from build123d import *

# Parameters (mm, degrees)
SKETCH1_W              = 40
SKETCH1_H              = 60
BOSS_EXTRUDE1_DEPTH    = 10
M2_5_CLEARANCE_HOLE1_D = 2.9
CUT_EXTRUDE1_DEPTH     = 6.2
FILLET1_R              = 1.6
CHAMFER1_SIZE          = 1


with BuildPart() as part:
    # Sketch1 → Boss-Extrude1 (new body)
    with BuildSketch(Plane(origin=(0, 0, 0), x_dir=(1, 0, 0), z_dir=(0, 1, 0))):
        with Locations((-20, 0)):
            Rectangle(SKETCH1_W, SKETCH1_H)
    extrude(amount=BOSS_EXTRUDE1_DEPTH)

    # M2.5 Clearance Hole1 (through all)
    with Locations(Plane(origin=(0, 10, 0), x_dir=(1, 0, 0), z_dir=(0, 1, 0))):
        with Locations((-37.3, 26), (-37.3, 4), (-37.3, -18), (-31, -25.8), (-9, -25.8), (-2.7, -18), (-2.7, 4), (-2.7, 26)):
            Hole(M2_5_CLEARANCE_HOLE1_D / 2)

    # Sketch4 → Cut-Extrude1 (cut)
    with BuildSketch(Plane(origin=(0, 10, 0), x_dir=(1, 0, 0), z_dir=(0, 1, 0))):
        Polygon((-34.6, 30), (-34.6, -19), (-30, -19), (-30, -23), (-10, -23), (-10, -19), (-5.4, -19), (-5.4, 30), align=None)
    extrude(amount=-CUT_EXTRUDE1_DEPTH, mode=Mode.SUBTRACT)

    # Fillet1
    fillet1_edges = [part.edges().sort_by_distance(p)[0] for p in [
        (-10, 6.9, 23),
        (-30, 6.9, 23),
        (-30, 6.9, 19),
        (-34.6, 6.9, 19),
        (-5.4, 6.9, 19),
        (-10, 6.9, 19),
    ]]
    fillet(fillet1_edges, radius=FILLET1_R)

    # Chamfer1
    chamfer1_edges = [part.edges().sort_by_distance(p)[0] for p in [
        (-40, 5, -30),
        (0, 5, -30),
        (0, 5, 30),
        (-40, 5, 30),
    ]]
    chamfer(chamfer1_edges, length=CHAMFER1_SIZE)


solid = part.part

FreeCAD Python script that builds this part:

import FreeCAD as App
import Part
import Sketcher
from FreeCAD import Vector
Q = App.Units.Quantity


def edges_at(feature, points):
    """Names of the edges that pass closest to the given points."""
    edges = feature.Shape.Edges
    near = lambda p: min(range(len(edges)), key=lambda i: edges[i].distToShape(Part.Vertex(*p))[0])
    return sorted({f"Edge{near(p) + 1}" for p in points})


def add_polygon(sketch, points):
    """Adds a closed chain of lines whose ends are joined by coincident constraints."""
    first, n = sketch.GeometryCount, len(points)
    for a, b in zip(points, points[1:] + points[:1]):
        sketch.addGeometry(Part.LineSegment(App.Vector(*a, 0), App.Vector(*b, 0)), False)
    for i in range(n):
        sketch.addConstraint(Sketcher.Constraint("Coincident", first + i, 2, first + (i + 1) % n, 1))

doc = App.newDocument("Part")
body = doc.addObject("PartDesign::Body", "Body")

# Sketch on XZ plane
sketch1 = doc.addObject("Sketcher::SketchObject", "Sketch")
body.addObject(sketch1)
sketch1.AttachmentSupport = (doc.XZ_Plane, [""])
sketch1.MapMode = "FlatFace"
add_polygon(sketch1, [(-40, -30), (-40, 30), (0, 30), (0, -30)])  # lines 0-3
sketch1.addConstraint([
    Sketcher.Constraint("Vertical", 0),
    Sketcher.Constraint("Horizontal", 1),
    Sketcher.Constraint("Vertical", 2),
    Sketcher.Constraint("Horizontal", 3),
    Sketcher.Constraint("Symmetric", 1, 2, 2, 2, -1, 1),
    Sketcher.Constraint("DistanceX", 1, 1, 1, 2, Q("40 mm")),
    Sketcher.Constraint("DistanceY", 0, 1, 0, 2, Q("60 mm")),
])
pad1 = doc.addObject("PartDesign::Pad", "Pad")
body.addObject(pad1)
pad1.Profile = sketch1
pad1.Length = 10
pad1.Reversed = True

# Sketch on XZ plane
sketch2 = doc.addObject("Sketcher::SketchObject", "Sketch001")
body.addObject(sketch2)
sketch2.AttachmentSupport = (doc.XZ_Plane, [""])
sketch2.MapMode = "FlatFace"
sketch2.AttachmentOffset = App.Placement(Vector(0, 0, -10), App.Rotation())
sketch2.addGeometry([
    Part.Circle(Vector(-37.3, -26, 0), Vector(0, 0, 1), 1.45),  # 0
    Part.Circle(Vector(-37.3, -4, 0), Vector(0, 0, 1), 1.45),  # 1
    Part.Circle(Vector(-37.3, 18, 0), Vector(0, 0, 1), 1.45),  # 2
    Part.Circle(Vector(-31, 25.8, 0), Vector(0, 0, 1), 1.45),  # 3
    Part.Circle(Vector(-9, 25.8, 0), Vector(0, 0, 1), 1.45),  # 4
    Part.Circle(Vector(-2.7, 18, 0), Vector(0, 0, 1), 1.45),  # 5
    Part.Circle(Vector(-2.7, -4, 0), Vector(0, 0, 1), 1.45),  # 6
    Part.Circle(Vector(-2.7, -26, 0), Vector(0, 0, 1), 1.45),  # 7
], False)
sketch2.addConstraint([
    Sketcher.Constraint("Equal", 0, 1),
    Sketcher.Constraint("Equal", 1, 2),
    Sketcher.Constraint("Equal", 2, 3),
    Sketcher.Constraint("Equal", 3, 4),
    Sketcher.Constraint("Equal", 4, 5),
    Sketcher.Constraint("Equal", 5, 6),
    Sketcher.Constraint("Equal", 6, 7),
    Sketcher.Constraint("Horizontal", 3, 3, 4, 3),
    Sketcher.Constraint("Horizontal", 2, 3, 5, 3),
    Sketcher.Constraint("Horizontal", 1, 3, 6, 3),
    Sketcher.Constraint("Horizontal", 0, 3, 7, 3),
    Sketcher.Constraint("Vertical", 0, 3, 1, 3),
    Sketcher.Constraint("Vertical", 1, 3, 2, 3),
    Sketcher.Constraint("Vertical", 5, 3, 6, 3),
    Sketcher.Constraint("Vertical", 6, 3, 7, 3),
    Sketcher.Constraint("Diameter", 0, Q("2.9 mm")),
    Sketcher.Constraint("DistanceY", 0, 3, -1, 1, Q("26 mm")),
    Sketcher.Constraint("DistanceY", 1, 3, -1, 1, Q("4 mm")),
    Sketcher.Constraint("DistanceY", -1, 1, 2, 3, Q("18 mm")),
    Sketcher.Constraint("DistanceX", 3, 3, -1, 1, Q("31 mm")),
    Sketcher.Constraint("DistanceX", 4, 3, -1, 1, Q("9 mm")),
    Sketcher.Constraint("DistanceX", 0, 3, -1, 1, Q("37.3 mm")),
    Sketcher.Constraint("DistanceY", -1, 1, 3, 3, Q("25.8 mm")),
    Sketcher.Constraint("DistanceX", 5, 3, -1, 1, Q("2.7 mm")),
])
doc.recompute()
hole = doc.addObject("PartDesign::Hole", "Hole")
body.addObject(hole)
hole.Profile = sketch2
hole.ThreadType = "None"
hole.Diameter = 2.9
hole.DepthType = "ThroughAll"
hole.Reversed = True

# Sketch on XZ plane
sketch3 = doc.addObject("Sketcher::SketchObject", "Sketch002")
body.addObject(sketch3)
sketch3.AttachmentSupport = (doc.XZ_Plane, [""])
sketch3.MapMode = "FlatFace"
sketch3.AttachmentOffset = App.Placement(Vector(0, 0, -10), App.Rotation())
add_polygon(sketch3, [(-34.6, -30), (-34.6, 19), (-30, 19), (-30, 23), (-10, 23), (-10, 19), (-5.4, 19), (-5.4, -30)])  # lines 0-7
sketch3.addConstraint([
    Sketcher.Constraint("Vertical", 0),
    Sketcher.Constraint("Horizontal", 1),
    Sketcher.Constraint("Vertical", 2),
    Sketcher.Constraint("Horizontal", 3),
    Sketcher.Constraint("Vertical", 4),
    Sketcher.Constraint("Horizontal", 5),
    Sketcher.Constraint("Vertical", 6),
    Sketcher.Constraint("Horizontal", 7),
    Sketcher.Constraint("Horizontal", 1, 2, 4, 2),
    Sketcher.Constraint("Equal", 1, 5),
    Sketcher.Constraint("DistanceX", 3, 1, 3, 2, Q("20 mm")),
    Sketcher.Constraint("DistanceY", 0, 1, 0, 2, Q("49 mm")),
    Sketcher.Constraint("DistanceY", 2, 1, 2, 2, Q("4 mm")),
    Sketcher.Constraint("DistanceX", 1, 1, 1, 2, Q("4.6 mm")),
    Sketcher.Constraint("DistanceY", -1, 1, 0, 2, Q("19 mm")),
    Sketcher.Constraint("DistanceX", 1, 2, -1, 1, Q("30 mm")),
])
pocket1 = doc.addObject("PartDesign::Pocket", "Pocket")
body.addObject(pocket1)
pocket1.Profile = sketch3
pocket1.Length = 6.2
pocket1.Reversed = True
doc.recompute()

fillet = doc.addObject("PartDesign::Fillet", "Fillet")
body.addObject(fillet)
fillet.Base = (pocket1, edges_at(pocket1, [
    (-10, 6.9, 23),
    (-30, 6.9, 23),
    (-30, 6.9, 19),
    (-34.6, 6.9, 19),
    (-5.4, 6.9, 19),
    (-10, 6.9, 19),
]))
fillet.Radius = 1.6
doc.recompute()

chamfer = doc.addObject("PartDesign::Chamfer", "Chamfer")
body.addObject(chamfer)
chamfer.Base = (fillet, edges_at(fillet, [
    (-40, 5, -30),
    (0, 5, -30),
    (0, 5, 30),
    (-40, 5, 30),
]))
chamfer.Size = 1

doc.recompute()
